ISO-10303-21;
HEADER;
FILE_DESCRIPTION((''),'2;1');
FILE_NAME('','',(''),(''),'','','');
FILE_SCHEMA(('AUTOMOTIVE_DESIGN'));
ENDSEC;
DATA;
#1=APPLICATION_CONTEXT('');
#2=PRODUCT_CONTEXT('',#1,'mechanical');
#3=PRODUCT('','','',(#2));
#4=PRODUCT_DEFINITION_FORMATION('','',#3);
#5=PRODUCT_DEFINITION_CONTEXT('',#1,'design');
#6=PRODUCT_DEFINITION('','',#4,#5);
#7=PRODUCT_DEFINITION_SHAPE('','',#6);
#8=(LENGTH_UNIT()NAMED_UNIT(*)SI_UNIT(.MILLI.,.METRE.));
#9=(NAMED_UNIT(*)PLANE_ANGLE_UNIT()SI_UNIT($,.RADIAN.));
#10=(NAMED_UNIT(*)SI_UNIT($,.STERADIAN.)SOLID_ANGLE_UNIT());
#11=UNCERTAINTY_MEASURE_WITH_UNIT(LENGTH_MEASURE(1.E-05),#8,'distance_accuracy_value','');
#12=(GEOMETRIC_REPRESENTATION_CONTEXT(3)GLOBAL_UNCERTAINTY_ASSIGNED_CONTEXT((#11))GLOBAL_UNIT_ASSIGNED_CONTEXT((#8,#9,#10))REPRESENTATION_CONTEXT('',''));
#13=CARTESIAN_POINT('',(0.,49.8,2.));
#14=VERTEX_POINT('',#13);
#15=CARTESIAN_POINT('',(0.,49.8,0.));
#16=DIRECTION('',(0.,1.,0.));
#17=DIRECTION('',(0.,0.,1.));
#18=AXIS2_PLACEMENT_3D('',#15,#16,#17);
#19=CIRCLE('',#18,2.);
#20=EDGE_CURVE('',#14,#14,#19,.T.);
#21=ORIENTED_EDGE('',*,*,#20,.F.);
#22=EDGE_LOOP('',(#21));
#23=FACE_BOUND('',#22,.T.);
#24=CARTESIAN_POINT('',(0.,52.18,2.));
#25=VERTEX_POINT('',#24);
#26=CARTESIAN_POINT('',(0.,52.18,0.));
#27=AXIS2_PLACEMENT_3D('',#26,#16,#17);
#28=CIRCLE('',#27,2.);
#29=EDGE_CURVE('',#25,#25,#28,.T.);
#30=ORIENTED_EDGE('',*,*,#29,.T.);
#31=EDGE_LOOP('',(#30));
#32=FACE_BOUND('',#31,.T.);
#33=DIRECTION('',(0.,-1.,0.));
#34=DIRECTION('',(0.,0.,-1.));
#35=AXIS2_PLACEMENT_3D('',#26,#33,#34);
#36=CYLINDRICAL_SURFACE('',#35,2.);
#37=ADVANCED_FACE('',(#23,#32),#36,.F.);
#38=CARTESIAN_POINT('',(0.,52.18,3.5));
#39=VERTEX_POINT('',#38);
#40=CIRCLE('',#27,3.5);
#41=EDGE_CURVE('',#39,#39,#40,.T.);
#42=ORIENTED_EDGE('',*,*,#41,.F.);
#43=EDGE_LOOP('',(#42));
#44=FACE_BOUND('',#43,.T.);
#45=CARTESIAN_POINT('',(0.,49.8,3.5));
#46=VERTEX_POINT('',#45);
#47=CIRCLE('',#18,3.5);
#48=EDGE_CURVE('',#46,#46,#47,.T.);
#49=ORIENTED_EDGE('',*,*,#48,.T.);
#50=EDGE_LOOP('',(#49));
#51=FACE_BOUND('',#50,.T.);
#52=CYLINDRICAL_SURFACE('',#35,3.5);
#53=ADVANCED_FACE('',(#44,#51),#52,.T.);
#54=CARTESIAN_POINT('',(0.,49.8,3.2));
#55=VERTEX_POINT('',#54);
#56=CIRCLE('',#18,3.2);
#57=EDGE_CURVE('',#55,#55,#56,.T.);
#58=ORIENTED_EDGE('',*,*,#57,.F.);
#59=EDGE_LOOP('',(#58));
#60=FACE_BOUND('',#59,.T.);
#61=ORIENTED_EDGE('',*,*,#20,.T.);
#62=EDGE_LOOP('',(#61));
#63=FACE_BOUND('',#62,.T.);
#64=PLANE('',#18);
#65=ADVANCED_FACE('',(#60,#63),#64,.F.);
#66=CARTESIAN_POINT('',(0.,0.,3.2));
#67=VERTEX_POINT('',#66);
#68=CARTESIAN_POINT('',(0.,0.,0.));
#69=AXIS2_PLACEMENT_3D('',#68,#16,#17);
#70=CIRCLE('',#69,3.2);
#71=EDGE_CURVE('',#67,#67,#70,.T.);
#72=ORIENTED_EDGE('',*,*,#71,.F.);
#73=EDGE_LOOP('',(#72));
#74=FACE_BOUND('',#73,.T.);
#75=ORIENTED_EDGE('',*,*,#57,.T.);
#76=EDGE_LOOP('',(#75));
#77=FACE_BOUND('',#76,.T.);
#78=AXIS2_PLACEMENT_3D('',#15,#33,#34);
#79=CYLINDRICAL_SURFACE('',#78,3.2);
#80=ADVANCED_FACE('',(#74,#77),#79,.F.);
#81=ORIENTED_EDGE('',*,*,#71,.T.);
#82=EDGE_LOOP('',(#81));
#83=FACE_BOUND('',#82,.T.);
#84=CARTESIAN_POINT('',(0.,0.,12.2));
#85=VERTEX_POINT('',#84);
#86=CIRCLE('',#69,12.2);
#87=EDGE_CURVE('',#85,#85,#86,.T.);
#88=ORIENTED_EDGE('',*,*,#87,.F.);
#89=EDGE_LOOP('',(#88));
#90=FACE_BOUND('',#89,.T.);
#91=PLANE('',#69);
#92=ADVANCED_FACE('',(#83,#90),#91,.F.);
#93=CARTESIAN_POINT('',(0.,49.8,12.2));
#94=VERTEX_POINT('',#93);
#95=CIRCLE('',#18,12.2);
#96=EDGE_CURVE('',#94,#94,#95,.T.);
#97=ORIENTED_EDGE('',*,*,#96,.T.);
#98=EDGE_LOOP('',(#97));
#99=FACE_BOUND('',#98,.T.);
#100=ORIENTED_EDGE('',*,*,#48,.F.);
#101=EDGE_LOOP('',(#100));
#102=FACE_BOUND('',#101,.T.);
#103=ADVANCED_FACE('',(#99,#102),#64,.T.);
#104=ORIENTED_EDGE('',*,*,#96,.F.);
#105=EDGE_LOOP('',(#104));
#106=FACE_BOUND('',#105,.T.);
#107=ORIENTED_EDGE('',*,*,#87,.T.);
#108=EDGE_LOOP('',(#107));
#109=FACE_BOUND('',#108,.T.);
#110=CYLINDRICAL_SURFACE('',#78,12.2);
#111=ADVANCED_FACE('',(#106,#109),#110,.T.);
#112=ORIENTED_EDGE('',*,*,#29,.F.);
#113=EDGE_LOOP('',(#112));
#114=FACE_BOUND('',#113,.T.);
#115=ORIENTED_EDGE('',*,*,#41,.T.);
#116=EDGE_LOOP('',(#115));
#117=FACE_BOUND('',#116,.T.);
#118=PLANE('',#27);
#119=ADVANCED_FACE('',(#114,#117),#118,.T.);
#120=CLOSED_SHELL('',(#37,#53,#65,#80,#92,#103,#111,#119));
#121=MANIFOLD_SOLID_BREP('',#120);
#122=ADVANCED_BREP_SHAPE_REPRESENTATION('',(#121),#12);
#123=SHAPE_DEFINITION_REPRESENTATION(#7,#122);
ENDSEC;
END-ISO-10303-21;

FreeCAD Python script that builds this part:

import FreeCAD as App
import Part
import Sketcher

V = App.Vector

doc = App.newDocument("Part")
body = doc.addObject("PartDesign::Body", "Body")

# Sketch on XZ plane
sketch1 = body.newObject("Sketcher::SketchObject", "Sketch")
sketch1.AttachmentSupport = (doc.getObject("XZ_Plane"), [""])
sketch1.MapMode = "FlatFace"
sketch1.addGeometry(Part.Circle(V(0, 0, 0), V(0, 0, 1), 12.2), False)
sketch1.addGeometry(Part.Circle(V(0, 0, 0), V(0, 0, 1), 3.2), False)
sketch1.addConstraint(Sketcher.Constraint("Coincident", 0, 3, -1, 1))
sketch1.addConstraint(Sketcher.Constraint("Coincident", 1, 3, -1, 1))
sketch1.addConstraint(Sketcher.Constraint("Diameter", 0, 24.4))
sketch1.addConstraint(Sketcher.Constraint("Diameter", 1, 6.4))
pad1 = body.newObject("PartDesign::Pad", "Pad")
pad1.Profile = sketch1
pad1.Length = 49.8
pad1.Reversed = True

# Sketch on XZ plane
sketch2 = body.newObject("Sketcher::SketchObject", "Sketch001")
sketch2.AttachmentSupport = (doc.getObject("XZ_Plane"), [""])
sketch2.MapMode = "FlatFace"
sketch2.AttachmentOffset = App.Placement(V(0, 0, -49.8), App.Rotation())
sketch2.addGeometry(Part.Circle(V(0, 0, 0), V(0, 0, 1), 3.5), False)
sketch2.addGeometry(Part.Circle(V(0, 0, 0), V(0, 0, 1), 2), False)
sketch2.addConstraint(Sketcher.Constraint("Coincident", 0, 3, -1, 1))
sketch2.addConstraint(Sketcher.Constraint("Coincident", 1, 3, -1, 1))
sketch2.addConstraint(Sketcher.Constraint("Diameter", 0, 7.0))
sketch2.addConstraint(Sketcher.Constraint("Diameter", 1, 4.0))
pad2 = body.newObject("PartDesign::Pad", "Pad001")
pad2.Profile = sketch2
pad2.Length = 2.38
pad2.Reversed = True

doc.recompute()
